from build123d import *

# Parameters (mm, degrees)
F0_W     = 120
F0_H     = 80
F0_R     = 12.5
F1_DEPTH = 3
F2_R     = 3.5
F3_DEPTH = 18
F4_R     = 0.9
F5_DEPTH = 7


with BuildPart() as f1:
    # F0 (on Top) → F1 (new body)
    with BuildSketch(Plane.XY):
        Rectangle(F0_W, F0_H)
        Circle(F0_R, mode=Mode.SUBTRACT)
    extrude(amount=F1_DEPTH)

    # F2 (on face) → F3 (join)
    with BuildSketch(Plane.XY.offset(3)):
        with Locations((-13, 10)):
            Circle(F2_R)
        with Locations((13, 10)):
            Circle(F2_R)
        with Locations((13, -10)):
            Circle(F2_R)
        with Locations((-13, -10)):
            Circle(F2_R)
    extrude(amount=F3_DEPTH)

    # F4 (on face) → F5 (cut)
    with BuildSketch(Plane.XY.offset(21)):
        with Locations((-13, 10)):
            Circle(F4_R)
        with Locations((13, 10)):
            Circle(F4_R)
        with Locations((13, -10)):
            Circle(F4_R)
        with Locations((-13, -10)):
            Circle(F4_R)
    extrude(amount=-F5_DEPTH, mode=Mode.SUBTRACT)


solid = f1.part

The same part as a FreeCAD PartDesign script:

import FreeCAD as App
import Part
import Sketcher

V = App.Vector


def add_polygon(sketch, points):
    """Adds a closed chain of lines whose ends are joined by coincident constraints."""
    first, n = sketch.GeometryCount, len(points)
    for a, b in zip(points, points[1:] + points[:1]):
        sketch.addGeometry(Part.LineSegment(App.Vector(*a, 0), App.Vector(*b, 0)), False)
    for i in range(n):
        sketch.addConstraint(Sketcher.Constraint("Coincident", first + i, 2, first + (i + 1) % n, 1))

doc = App.newDocument("Part")
body = doc.addObject("PartDesign::Body", "Body")

sketch1 = doc.addObject("Sketcher::SketchObject", "Sketch")
body.addObject(sketch1)
sketch1.AttachmentSupport = (doc.XY_Plane, [""])
sketch1.MapMode = "FlatFace"
add_polygon(sketch1, [(-60, 40), (-60, -40), (60, -40), (60, 40)])
sketch1.addGeometry(Part.Circle(V(0, 0, 0), V(0, 0, 1), 12), False)
sketch1.addConstraint(Sketcher.Constraint("Vertical", 0))
sketch1.addConstraint(Sketcher.Constraint("Horizontal", 1))
sketch1.addConstraint(Sketcher.Constraint("Vertical", 2))
sketch1.addConstraint(Sketcher.Constraint("Horizontal", 3))
sketch1.addConstraint(Sketcher.Constraint("Coincident", 4, 3, -1, 1))
sketch1.addConstraint(Sketcher.Constraint("Symmetric", 0, 2, 2, 2, -1, 1))
sketch1.addConstraint(Sketcher.Constraint("Diameter", 4, 25.0))
sketch1.addConstraint(Sketcher.Constraint("DistanceX", 1, 1, 1, 2, 120.0))
sketch1.addConstraint(Sketcher.Constraint("DistanceY", 0, 2, 0, 1, 80.0))
pad1 = doc.addObject("PartDesign::Pad", "Pad")
body.addObject(pad1)
pad1.Profile = sketch1
pad1.Length = 3

sketch2 = doc.addObject("Sketcher::SketchObject", "Sketch001")
body.addObject(sketch2)
sketch2.AttachmentSupport = (doc.XY_Plane, [""])
sketch2.MapMode = "FlatFace"
sketch2.AttachmentOffset = App.Placement(V(0, 0, 3), App.Rotation())
sketch2.addGeometry(Part.Circle(V(-13, 10, 0), V(0, 0, 1), 3.5), False)
sketch2.addGeometry(Part.Circle(V(13, 10, 0), V(0, 0, 1), 3.5), False)
sketch2.addGeometry(Part.Circle(V(13, -10, 0), V(0, 0, 1), 3.5), False)
sketch2.addGeometry(Part.Circle(V(-13, -10, 0), V(0, 0, 1), 3.5), False)
sketch2.addConstraint(Sketcher.Constraint("Equal", 0, 1))
sketch2.addConstraint(Sketcher.Constraint("Equal", 1, 2))
sketch2.addConstraint(Sketcher.Constraint("Equal", 2, 3))
sketch2.addConstraint(Sketcher.Constraint("Symmetric", 0, 3, 2, 3, -1, 1))
sketch2.addConstraint(Sketcher.Constraint("Symmetric", 1, 3, 3, 3, -1, 1))
sketch2.addConstraint(Sketcher.Constraint("Symmetric", 0, 3, 1, 3, -2))
sketch2.addConstraint(Sketcher.Constraint("Diameter", 0, 7.0))
sketch2.addConstraint(Sketcher.Constraint("DistanceX", 0, 3, -1, 1, 13.0))
sketch2.addConstraint(Sketcher.Constraint("DistanceY", -1, 1, 0, 3, 10.0))
pad2 = doc.addObject("PartDesign::Pad", "Pad001")
body.addObject(pad2)
pad2.Profile = sketch2
pad2.Length = 18

sketch3 = doc.addObject("Sketcher::SketchObject", "Sketch002")
body.addObject(sketch3)
sketch3.AttachmentSupport = (doc.XY_Plane, [""])
sketch3.MapMode = "FlatFace"
sketch3.AttachmentOffset = App.Placement(V(0, 0, 21), App.Rotation())
sketch3.addGeometry(Part.Circle(V(-13, 10, 0), V(0, 0, 1), 0.9), False)
sketch3.addGeometry(Part.Circle(V(13, 10, 0), V(0, 0, 1), 0.9), False)
sketch3.addGeometry(Part.Circle(V(13, -10, 0), V(0, 0, 1), 0.9), False)
sketch3.addGeometry(Part.Circle(V(-13, -10, 0), V(0, 0, 1), 0.9), False)
sketch3.addConstraint(Sketcher.Constraint("Equal", 0, 1))
sketch3.addConstraint(Sketcher.Constraint("Equal", 1, 2))
sketch3.addConstraint(Sketcher.Constraint("Equal", 2, 3))
sketch3.addConstraint(Sketcher.Constraint("Symmetric", 0, 3, 2, 3, -1, 1))
sketch3.addConstraint(Sketcher.Constraint("Symmetric", 1, 3, 3, 3, -1, 1))
sketch3.addConstraint(Sketcher.Constraint("Symmetric", 0, 3, 1, 3, -2))
sketch3.addConstraint(Sketcher.Constraint("Diameter", 0, 1.8))
sketch3.addConstraint(Sketcher.Constraint("DistanceX", 0, 3, -1, 1, 13.0))
sketch3.addConstraint(Sketcher.Constraint("DistanceY", -1, 1, 0, 3, 10.0))
pocket1 = doc.addObject("PartDesign::Pocket", "Pocket")
body.addObject(pocket1)
pocket1.Profile = sketch3
pocket1.Length = 7

doc.recompute()
